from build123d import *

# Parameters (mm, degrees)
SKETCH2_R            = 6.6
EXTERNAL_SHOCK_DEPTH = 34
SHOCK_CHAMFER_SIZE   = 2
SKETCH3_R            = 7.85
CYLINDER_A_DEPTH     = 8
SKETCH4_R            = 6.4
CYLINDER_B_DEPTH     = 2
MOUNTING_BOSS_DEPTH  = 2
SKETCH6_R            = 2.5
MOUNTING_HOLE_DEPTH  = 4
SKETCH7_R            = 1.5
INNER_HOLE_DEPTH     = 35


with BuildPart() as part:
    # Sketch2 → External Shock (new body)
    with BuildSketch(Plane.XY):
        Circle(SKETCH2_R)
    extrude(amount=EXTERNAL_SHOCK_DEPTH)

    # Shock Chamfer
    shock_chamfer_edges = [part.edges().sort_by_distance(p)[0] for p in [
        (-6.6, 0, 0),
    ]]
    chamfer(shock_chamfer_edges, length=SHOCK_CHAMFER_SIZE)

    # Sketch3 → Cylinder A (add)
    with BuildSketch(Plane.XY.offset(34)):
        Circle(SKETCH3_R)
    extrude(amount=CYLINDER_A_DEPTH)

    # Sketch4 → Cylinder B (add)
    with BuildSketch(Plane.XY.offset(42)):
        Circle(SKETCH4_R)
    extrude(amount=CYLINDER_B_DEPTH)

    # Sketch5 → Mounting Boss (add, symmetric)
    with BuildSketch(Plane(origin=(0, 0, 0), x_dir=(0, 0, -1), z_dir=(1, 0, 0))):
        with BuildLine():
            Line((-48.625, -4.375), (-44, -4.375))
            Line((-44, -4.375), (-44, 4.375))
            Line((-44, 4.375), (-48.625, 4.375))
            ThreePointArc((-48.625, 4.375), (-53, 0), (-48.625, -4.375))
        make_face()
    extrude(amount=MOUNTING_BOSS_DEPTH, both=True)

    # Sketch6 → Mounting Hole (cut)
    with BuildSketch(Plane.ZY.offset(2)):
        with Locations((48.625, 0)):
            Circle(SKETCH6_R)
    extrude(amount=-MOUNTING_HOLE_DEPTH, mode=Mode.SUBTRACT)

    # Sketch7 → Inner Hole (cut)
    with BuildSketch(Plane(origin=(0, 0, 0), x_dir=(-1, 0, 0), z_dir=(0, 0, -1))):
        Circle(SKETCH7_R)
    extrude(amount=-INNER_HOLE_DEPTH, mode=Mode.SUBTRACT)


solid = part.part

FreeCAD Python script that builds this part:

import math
import FreeCAD as App
import Part
import Sketcher

V = App.Vector
Q = App.Units.Quantity


def edges_at(feature, points):
    """Names of the edges that pass closest to the given points."""
    edges = feature.Shape.Edges
    near = lambda p: min(range(len(edges)), key=lambda i: edges[i].distToShape(Part.Vertex(*p))[0])
    return sorted({f"Edge{near(p) + 1}" for p in points})

doc = App.newDocument("Part")
body = doc.addObject("PartDesign::Body", "Body")

# Sketch on XY plane
sketch1 = doc.addObject("Sketcher::SketchObject", "Sketch")
body.addObject(sketch1)
sketch1.AttachmentSupport = (doc.XY_Plane, [""])
sketch1.MapMode = "FlatFace"
sketch1.addGeometry(Part.Circle(V(0, 0, 0), V(0, 0, 1), 7), False)
sketch1.addConstraint([
    Sketcher.Constraint("Coincident", 0, 3, -1, 1),
    Sketcher.Constraint("Diameter", 0, Q("13.2 mm")),
])
pad1 = doc.addObject("PartDesign::Pad", "Pad")
body.addObject(pad1)
pad1.Profile = sketch1
pad1.Length = 34
doc.recompute()

chamfer = doc.addObject("PartDesign::Chamfer", "Chamfer")
body.addObject(chamfer)
chamfer.Base = (pad1, edges_at(pad1, [(-6.6, 0, 0)]))
chamfer.Size = 2

# Sketch on XY plane
sketch2 = doc.addObject("Sketcher::SketchObject", "Sketch001")
body.addObject(sketch2)
sketch2.AttachmentSupport = (doc.XY_Plane, [""])
sketch2.MapMode = "FlatFace"
sketch2.AttachmentOffset = App.Placement(V(0, 0, 34), App.Rotation())
sketch2.addGeometry(Part.Circle(V(0, 0, 0), V(0, 0, 1), 8), False)
sketch2.addConstraint([
    Sketcher.Constraint("Coincident", 0, 3, -1, 1),
    Sketcher.Constraint("Diameter", 0, Q("15.7 mm")),
])
pad2 = doc.addObject("PartDesign::Pad", "Pad001")
body.addObject(pad2)
pad2.Profile = sketch2
pad2.Length = 8

# Sketch on XY plane
sketch3 = doc.addObject("Sketcher::SketchObject", "Sketch002")
body.addObject(sketch3)
sketch3.AttachmentSupport = (doc.XY_Plane, [""])
sketch3.MapMode = "FlatFace"
sketch3.AttachmentOffset = App.Placement(V(0, 0, 42), App.Rotation())
sketch3.addGeometry(Part.Circle(V(0, 0, 0), V(0, 0, 1), 6), False)
sketch3.addConstraint([
    Sketcher.Constraint("Coincident", 0, 3, -1, 1),
    Sketcher.Constraint("Diameter", 0, Q("12.8 mm")),
])
pad3 = doc.addObject("PartDesign::Pad", "Pad002")
body.addObject(pad3)
pad3.Profile = sketch3
pad3.Length = 2

# Sketch on YZ plane
sketch4 = doc.addObject("Sketcher::SketchObject", "Sketch003")
body.addObject(sketch4)
sketch4.AttachmentSupport = (doc.YZ_Plane, [""])
sketch4.MapMode = "FlatFace"
sketch4.addGeometry([
    Part.LineSegment(V(-4.4, 48.6, 0), V(-4.4, 44, 0)),
    Part.LineSegment(V(-4.4, 44, 0), V(4.4, 44, 0)),
    Part.LineSegment(V(4.4, 44, 0), V(4.4, 48.6, 0)),
    Part.ArcOfCircle(Part.Circle(V(0, 48.6, 0), V(0, 0, 1), 4.4), math.radians(0), math.radians(180)),
], False)
sketch4.addConstraint([
    Sketcher.Constraint("Coincident", 0, 2, 1, 1),
    Sketcher.Constraint("Coincident", 1, 2, 2, 1),
    Sketcher.Constraint("Tangent", 2, 2, 3, 1),
    Sketcher.Constraint("Tangent", 3, 2, 0, 1),
    Sketcher.Constraint("Vertical", 0),
    Sketcher.Constraint("Horizontal", 1),
    Sketcher.Constraint("Vertical", 2),
    Sketcher.Constraint("PointOnObject", 3, 3, -2),
    Sketcher.Constraint("DistanceY", -1, 1, 0, 2, Q("44 mm")),
    Sketcher.Constraint("Radius", 3, Q("4.375 mm")),
    Sketcher.Constraint("DistanceY", 0, 2, 0, 1, Q("4.625 mm")),
])
pad4 = doc.addObject("PartDesign::Pad", "Pad003")
body.addObject(pad4)
pad4.Profile = sketch4
pad4.Length = 4
pad4.Midplane = True

# Sketch on YZ plane
sketch5 = doc.addObject("Sketcher::SketchObject", "Sketch004")
body.addObject(sketch5)
sketch5.AttachmentSupport = (doc.YZ_Plane, [""])
sketch5.MapMode = "FlatFace"
sketch5.AttachmentOffset = App.Placement(V(0, 0, -2), App.Rotation())
sketch5.addGeometry(Part.Circle(V(0, 48.6, 0), V(0, 0, 1), 2.5), False)
sketch5.addConstraint([
    Sketcher.Constraint("PointOnObject", 0, 3, -2),
    Sketcher.Constraint("Diameter", 0, Q("5 mm")),
    Sketcher.Constraint("DistanceY", -1, 1, 0, 3, Q("48.625 mm")),
])
pocket1 = doc.addObject("PartDesign::Pocket", "Pocket")
body.addObject(pocket1)
pocket1.Profile = sketch5
pocket1.Length = 4
pocket1.Reversed = True

# Sketch on XY plane
sketch6 = doc.addObject("Sketcher::SketchObject", "Sketch005")
body.addObject(sketch6)
sketch6.AttachmentSupport = (doc.XY_Plane, [""])
sketch6.MapMode = "FlatFace"
sketch6.addGeometry(Part.Circle(V(0, 0, 0), V(0, 0, 1), 1.5), False)
sketch6.addConstraint([
    Sketcher.Constraint("Coincident", 0, 3, -1, 1),
    Sketcher.Constraint("Diameter", 0, Q("3 mm")),
])
pocket2 = doc.addObject("PartDesign::Pocket", "Pocket001")
body.addObject(pocket2)
pocket2.Profile = sketch6
pocket2.Length = 35
pocket2.Reversed = True

doc.recompute()
